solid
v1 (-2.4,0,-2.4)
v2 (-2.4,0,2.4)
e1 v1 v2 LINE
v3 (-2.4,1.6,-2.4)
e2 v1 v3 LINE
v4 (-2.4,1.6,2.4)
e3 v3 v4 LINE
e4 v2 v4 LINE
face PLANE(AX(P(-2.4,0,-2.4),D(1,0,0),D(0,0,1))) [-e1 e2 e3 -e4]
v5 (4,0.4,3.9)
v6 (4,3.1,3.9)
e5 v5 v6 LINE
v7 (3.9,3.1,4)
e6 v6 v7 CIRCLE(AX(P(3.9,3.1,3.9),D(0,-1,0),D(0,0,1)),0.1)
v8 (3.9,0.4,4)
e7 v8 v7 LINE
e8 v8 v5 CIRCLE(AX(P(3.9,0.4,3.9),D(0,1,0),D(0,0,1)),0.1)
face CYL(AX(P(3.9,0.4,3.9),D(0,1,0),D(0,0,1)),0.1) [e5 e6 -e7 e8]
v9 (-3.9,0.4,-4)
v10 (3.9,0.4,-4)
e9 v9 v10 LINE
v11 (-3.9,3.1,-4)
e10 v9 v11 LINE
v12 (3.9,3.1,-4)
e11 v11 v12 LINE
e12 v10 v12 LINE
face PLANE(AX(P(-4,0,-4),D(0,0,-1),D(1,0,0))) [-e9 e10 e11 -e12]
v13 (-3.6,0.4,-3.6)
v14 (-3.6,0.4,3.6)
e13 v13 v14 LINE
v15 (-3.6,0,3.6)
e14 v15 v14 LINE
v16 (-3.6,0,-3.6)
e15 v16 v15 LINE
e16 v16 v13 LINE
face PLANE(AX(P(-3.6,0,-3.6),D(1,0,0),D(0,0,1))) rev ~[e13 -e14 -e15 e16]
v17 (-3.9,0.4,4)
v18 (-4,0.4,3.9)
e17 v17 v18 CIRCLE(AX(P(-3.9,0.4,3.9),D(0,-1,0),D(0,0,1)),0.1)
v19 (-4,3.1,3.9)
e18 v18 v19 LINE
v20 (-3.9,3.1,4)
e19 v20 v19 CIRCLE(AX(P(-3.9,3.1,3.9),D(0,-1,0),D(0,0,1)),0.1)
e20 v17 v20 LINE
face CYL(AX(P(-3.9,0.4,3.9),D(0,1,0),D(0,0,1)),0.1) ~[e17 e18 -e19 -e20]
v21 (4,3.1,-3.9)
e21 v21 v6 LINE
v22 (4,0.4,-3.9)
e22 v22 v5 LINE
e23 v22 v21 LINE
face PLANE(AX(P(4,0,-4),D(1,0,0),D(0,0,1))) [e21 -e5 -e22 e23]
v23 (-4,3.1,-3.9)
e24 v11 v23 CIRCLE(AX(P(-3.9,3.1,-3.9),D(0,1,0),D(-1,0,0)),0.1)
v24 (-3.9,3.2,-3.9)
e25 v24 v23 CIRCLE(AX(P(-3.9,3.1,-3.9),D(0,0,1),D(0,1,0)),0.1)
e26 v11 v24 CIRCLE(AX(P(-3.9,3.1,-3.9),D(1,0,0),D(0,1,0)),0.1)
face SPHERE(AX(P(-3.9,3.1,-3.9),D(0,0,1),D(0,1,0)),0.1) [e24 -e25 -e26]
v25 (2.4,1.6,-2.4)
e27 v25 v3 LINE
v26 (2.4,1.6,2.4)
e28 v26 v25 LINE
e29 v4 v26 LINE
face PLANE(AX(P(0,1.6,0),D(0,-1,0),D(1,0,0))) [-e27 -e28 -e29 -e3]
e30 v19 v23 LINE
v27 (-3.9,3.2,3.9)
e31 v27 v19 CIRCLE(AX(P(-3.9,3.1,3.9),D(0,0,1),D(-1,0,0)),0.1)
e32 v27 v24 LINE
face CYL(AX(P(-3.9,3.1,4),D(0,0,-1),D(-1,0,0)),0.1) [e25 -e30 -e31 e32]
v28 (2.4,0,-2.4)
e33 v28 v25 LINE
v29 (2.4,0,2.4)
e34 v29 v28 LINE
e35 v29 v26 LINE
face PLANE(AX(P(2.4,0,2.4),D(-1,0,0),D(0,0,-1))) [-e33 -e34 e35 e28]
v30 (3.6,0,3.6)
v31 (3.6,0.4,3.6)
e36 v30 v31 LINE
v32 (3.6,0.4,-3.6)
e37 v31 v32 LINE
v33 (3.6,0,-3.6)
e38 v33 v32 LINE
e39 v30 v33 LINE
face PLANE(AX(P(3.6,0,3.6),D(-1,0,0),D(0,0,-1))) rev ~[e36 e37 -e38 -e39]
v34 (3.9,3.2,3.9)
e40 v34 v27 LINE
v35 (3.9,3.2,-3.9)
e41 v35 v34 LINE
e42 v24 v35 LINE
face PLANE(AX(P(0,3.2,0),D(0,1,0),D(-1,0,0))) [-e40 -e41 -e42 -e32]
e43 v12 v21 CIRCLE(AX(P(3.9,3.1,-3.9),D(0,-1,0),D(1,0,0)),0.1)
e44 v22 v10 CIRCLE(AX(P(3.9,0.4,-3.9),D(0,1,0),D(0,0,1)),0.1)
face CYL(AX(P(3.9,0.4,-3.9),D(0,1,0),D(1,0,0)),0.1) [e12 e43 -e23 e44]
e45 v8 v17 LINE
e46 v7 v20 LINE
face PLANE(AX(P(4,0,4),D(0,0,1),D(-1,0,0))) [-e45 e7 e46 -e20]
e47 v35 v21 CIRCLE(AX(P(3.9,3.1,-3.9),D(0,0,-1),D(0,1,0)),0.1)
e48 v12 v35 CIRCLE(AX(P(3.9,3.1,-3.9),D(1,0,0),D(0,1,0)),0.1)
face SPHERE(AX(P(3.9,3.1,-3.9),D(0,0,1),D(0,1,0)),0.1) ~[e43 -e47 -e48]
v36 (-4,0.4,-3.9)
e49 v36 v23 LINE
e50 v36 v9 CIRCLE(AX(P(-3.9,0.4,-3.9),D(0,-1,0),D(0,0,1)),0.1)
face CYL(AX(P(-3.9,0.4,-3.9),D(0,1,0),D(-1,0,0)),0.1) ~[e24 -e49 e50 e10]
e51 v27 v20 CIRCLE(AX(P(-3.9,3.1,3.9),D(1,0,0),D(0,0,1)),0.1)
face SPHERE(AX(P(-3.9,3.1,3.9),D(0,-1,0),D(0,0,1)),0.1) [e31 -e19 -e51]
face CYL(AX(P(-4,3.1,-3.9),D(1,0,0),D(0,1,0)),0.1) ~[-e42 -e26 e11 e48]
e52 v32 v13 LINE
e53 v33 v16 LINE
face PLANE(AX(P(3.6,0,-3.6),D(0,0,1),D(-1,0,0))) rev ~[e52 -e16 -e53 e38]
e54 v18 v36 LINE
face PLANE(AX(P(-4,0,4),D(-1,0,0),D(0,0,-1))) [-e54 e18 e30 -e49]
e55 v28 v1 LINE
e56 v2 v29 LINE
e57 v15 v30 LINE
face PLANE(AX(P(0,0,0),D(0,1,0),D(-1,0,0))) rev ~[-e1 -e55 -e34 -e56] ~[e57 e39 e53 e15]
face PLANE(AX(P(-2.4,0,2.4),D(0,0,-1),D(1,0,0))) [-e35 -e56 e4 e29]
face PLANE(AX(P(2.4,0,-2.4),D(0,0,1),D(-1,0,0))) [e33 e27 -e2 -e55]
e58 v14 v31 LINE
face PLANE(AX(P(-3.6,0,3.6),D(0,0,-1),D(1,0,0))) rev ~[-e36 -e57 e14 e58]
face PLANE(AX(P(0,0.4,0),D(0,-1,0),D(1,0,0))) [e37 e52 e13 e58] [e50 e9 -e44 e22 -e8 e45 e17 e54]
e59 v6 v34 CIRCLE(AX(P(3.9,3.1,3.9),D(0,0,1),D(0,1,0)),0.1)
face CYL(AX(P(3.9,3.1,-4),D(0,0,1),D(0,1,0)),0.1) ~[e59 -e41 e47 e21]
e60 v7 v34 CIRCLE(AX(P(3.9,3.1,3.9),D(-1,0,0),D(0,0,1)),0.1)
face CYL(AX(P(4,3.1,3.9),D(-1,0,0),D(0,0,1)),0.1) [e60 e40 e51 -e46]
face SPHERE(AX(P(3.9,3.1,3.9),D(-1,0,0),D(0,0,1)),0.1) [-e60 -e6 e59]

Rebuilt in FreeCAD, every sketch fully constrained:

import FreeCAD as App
import Part
import Sketcher
from FreeCAD import Vector


def edges_at(feature, points):
    """Names of the edges that pass closest to the given points."""
    edges = feature.Shape.Edges
    near = lambda p: min(range(len(edges)), key=lambda i: edges[i].distToShape(Part.Vertex(*p))[0])
    return sorted({f"Edge{near(p) + 1}" for p in points})

doc = App.newDocument("Part")
body = doc.addObject("PartDesign::Body", "Body")

# Sketch on XZ plane
sketch1 = body.newObject("Sketcher::SketchObject", "Sketch")
sketch1.AttachmentSupport = (doc.getObject("XZ_Plane"), [""])
sketch1.MapMode = "FlatFace"
sketch1.addGeometry([
    Part.LineSegment(Vector(-4, 4, 0), Vector(4, 4, 0)),
    Part.LineSegment(Vector(4, 4, 0), Vector(4, -4, 0)),
    Part.LineSegment(Vector(4, -4, 0), Vector(-4, -4, 0)),
    Part.LineSegment(Vector(-4, -4, 0), Vector(-4, 4, 0)),
], False)
sketch1.addConstraint([
    Sketcher.Constraint("Coincident", 0, 2, 1, 1),
    Sketcher.Constraint("Coincident", 1, 2, 2, 1),
    Sketcher.Constraint("Coincident", 2, 2, 3, 1),
    Sketcher.Constraint("Coincident", 3, 2, 0, 1),
    Sketcher.Constraint("Horizontal", 0),
    Sketcher.Constraint("Vertical", 1),
    Sketcher.Constraint("Horizontal", 2),
    Sketcher.Constraint("Vertical", 3),
    Sketcher.Constraint("Symmetric", 0, 2, 2, 2, -1, 1),
    Sketcher.Constraint("Equal", 2, 1),
    Sketcher.Constraint("DistanceX", 0, 1, 0, 2, 8.0),
])
pad1 = body.newObject("PartDesign::Pad", "Pad")
pad1.Profile = sketch1
pad1.Length = 3.2
pad1.Reversed = True

# Sketch on XZ plane
sketch2 = body.newObject("Sketcher::SketchObject", "Sketch001")
sketch2.AttachmentSupport = (doc.getObject("XZ_Plane"), [""])
sketch2.MapMode = "FlatFace"
sketch2.addGeometry([
    Part.LineSegment(Vector(2.4, 2.4, 0), Vector(-2.4, 2.4, 0)),
    Part.LineSegment(Vector(-2.4, 2.4, 0), Vector(-2.4, -2.4, 0)),
    Part.LineSegment(Vector(-2.4, -2.4, 0), Vector(2.4, -2.4, 0)),
    Part.LineSegment(Vector(2.4, -2.4, 0), Vector(2.4, 2.4, 0)),
], False)
sketch2.addConstraint([
    Sketcher.Constraint("Coincident", 0, 2, 1, 1),
    Sketcher.Constraint("Coincident", 1, 2, 2, 1),
    Sketcher.Constraint("Coincident", 2, 2, 3, 1),
    Sketcher.Constraint("Coincident", 3, 2, 0, 1),
    Sketcher.Constraint("Horizontal", 0),
    Sketcher.Constraint("Vertical", 1),
    Sketcher.Constraint("Horizontal", 2),
    Sketcher.Constraint("Vertical", 3),
    Sketcher.Constraint("Symmetric", 0, 2, 2, 2, -1, 1),
    Sketcher.Constraint("Equal", 2, 1),
    Sketcher.Constraint("DistanceX", 0, 2, 0, 1, 4.8),
])
pocket1 = body.newObject("PartDesign::Pocket", "Pocket")
pocket1.Profile = sketch2
pocket1.Length = 1.6

# Sketch on XZ plane
sketch3 = body.newObject("Sketcher::SketchObject", "Sketch002")
sketch3.AttachmentSupport = (doc.getObject("XZ_Plane"), [""])
sketch3.MapMode = "FlatFace"
sketch3.addGeometry([
    Part.LineSegment(Vector(4, -4, 0), Vector(4, 4, 0)),  # 0
    Part.LineSegment(Vector(4, 4, 0), Vector(-4, 4, 0)),  # 1
    Part.LineSegment(Vector(-4, 4, 0), Vector(-4, -4, 0)),  # 2
    Part.LineSegment(Vector(-4, -4, 0), Vector(4, -4, 0)),  # 3
    Part.LineSegment(Vector(-3.6, -3.6, 0), Vector(-3.6, 3.6, 0)),  # 4
    Part.LineSegment(Vector(-3.6, 3.6, 0), Vector(3.6, 3.6, 0)),  # 5
    Part.LineSegment(Vector(3.6, 3.6, 0), Vector(3.6, -3.6, 0)),  # 6
    Part.LineSegment(Vector(3.6, -3.6, 0), Vector(-3.6, -3.6, 0)),  # 7
], False)
sketch3.addConstraint([
    Sketcher.Constraint("Coincident", 0, 2, 1, 1),
    Sketcher.Constraint("Coincident", 1, 2, 2, 1),
    Sketcher.Constraint("Coincident", 2, 2, 3, 1),
    Sketcher.Constraint("Coincident", 3, 2, 0, 1),
    Sketcher.Constraint("Coincident", 4, 2, 5, 1),
    Sketcher.Constraint("Coincident", 5, 2, 6, 1),
    Sketcher.Constraint("Coincident", 6, 2, 7, 1),
    Sketcher.Constraint("Coincident", 7, 2, 4, 1),
    Sketcher.Constraint("Vertical", 0),
    Sketcher.Constraint("Horizontal", 1),
    Sketcher.Constraint("Vertical", 2),
    Sketcher.Constraint("Horizontal", 3),
    Sketcher.Constraint("Vertical", 4),
    Sketcher.Constraint("Horizontal", 5),
    Sketcher.Constraint("Vertical", 6),
    Sketcher.Constraint("Horizontal", 7),
    Sketcher.Constraint("Symmetric", 0, 2, 2, 2, -1, 1),
    Sketcher.Constraint("Symmetric", 4, 2, 6, 2, -1, 1),
    Sketcher.Constraint("Equal", 3, 0),
    Sketcher.Constraint("Equal", 7, 4),
    Sketcher.Constraint("DistanceX", 1, 2, 4, 2, 0.4),
    Sketcher.Constraint("DistanceX", 1, 2, 1, 1, 8.0),
])
pocket2 = body.newObject("PartDesign::Pocket", "Pocket001")
pocket2.Profile = sketch3
pocket2.Length = 0.4
doc.recompute()

fillet = body.newObject("PartDesign::Fillet", "Fillet")
fillet.Base = (pocket2, edges_at(pocket2, [
    (-4, 1.8, 4),
    (0, 3.2, 4),
    (-4, 3.2, 0),
    (4, 1.8, 4),
    (4, 3.2, 0),
    (0, 3.2, -4),
    (4, 1.8, -4),
    (-4, 1.8, -4),
]))
fillet.Radius = 0.1

doc.recompute()
